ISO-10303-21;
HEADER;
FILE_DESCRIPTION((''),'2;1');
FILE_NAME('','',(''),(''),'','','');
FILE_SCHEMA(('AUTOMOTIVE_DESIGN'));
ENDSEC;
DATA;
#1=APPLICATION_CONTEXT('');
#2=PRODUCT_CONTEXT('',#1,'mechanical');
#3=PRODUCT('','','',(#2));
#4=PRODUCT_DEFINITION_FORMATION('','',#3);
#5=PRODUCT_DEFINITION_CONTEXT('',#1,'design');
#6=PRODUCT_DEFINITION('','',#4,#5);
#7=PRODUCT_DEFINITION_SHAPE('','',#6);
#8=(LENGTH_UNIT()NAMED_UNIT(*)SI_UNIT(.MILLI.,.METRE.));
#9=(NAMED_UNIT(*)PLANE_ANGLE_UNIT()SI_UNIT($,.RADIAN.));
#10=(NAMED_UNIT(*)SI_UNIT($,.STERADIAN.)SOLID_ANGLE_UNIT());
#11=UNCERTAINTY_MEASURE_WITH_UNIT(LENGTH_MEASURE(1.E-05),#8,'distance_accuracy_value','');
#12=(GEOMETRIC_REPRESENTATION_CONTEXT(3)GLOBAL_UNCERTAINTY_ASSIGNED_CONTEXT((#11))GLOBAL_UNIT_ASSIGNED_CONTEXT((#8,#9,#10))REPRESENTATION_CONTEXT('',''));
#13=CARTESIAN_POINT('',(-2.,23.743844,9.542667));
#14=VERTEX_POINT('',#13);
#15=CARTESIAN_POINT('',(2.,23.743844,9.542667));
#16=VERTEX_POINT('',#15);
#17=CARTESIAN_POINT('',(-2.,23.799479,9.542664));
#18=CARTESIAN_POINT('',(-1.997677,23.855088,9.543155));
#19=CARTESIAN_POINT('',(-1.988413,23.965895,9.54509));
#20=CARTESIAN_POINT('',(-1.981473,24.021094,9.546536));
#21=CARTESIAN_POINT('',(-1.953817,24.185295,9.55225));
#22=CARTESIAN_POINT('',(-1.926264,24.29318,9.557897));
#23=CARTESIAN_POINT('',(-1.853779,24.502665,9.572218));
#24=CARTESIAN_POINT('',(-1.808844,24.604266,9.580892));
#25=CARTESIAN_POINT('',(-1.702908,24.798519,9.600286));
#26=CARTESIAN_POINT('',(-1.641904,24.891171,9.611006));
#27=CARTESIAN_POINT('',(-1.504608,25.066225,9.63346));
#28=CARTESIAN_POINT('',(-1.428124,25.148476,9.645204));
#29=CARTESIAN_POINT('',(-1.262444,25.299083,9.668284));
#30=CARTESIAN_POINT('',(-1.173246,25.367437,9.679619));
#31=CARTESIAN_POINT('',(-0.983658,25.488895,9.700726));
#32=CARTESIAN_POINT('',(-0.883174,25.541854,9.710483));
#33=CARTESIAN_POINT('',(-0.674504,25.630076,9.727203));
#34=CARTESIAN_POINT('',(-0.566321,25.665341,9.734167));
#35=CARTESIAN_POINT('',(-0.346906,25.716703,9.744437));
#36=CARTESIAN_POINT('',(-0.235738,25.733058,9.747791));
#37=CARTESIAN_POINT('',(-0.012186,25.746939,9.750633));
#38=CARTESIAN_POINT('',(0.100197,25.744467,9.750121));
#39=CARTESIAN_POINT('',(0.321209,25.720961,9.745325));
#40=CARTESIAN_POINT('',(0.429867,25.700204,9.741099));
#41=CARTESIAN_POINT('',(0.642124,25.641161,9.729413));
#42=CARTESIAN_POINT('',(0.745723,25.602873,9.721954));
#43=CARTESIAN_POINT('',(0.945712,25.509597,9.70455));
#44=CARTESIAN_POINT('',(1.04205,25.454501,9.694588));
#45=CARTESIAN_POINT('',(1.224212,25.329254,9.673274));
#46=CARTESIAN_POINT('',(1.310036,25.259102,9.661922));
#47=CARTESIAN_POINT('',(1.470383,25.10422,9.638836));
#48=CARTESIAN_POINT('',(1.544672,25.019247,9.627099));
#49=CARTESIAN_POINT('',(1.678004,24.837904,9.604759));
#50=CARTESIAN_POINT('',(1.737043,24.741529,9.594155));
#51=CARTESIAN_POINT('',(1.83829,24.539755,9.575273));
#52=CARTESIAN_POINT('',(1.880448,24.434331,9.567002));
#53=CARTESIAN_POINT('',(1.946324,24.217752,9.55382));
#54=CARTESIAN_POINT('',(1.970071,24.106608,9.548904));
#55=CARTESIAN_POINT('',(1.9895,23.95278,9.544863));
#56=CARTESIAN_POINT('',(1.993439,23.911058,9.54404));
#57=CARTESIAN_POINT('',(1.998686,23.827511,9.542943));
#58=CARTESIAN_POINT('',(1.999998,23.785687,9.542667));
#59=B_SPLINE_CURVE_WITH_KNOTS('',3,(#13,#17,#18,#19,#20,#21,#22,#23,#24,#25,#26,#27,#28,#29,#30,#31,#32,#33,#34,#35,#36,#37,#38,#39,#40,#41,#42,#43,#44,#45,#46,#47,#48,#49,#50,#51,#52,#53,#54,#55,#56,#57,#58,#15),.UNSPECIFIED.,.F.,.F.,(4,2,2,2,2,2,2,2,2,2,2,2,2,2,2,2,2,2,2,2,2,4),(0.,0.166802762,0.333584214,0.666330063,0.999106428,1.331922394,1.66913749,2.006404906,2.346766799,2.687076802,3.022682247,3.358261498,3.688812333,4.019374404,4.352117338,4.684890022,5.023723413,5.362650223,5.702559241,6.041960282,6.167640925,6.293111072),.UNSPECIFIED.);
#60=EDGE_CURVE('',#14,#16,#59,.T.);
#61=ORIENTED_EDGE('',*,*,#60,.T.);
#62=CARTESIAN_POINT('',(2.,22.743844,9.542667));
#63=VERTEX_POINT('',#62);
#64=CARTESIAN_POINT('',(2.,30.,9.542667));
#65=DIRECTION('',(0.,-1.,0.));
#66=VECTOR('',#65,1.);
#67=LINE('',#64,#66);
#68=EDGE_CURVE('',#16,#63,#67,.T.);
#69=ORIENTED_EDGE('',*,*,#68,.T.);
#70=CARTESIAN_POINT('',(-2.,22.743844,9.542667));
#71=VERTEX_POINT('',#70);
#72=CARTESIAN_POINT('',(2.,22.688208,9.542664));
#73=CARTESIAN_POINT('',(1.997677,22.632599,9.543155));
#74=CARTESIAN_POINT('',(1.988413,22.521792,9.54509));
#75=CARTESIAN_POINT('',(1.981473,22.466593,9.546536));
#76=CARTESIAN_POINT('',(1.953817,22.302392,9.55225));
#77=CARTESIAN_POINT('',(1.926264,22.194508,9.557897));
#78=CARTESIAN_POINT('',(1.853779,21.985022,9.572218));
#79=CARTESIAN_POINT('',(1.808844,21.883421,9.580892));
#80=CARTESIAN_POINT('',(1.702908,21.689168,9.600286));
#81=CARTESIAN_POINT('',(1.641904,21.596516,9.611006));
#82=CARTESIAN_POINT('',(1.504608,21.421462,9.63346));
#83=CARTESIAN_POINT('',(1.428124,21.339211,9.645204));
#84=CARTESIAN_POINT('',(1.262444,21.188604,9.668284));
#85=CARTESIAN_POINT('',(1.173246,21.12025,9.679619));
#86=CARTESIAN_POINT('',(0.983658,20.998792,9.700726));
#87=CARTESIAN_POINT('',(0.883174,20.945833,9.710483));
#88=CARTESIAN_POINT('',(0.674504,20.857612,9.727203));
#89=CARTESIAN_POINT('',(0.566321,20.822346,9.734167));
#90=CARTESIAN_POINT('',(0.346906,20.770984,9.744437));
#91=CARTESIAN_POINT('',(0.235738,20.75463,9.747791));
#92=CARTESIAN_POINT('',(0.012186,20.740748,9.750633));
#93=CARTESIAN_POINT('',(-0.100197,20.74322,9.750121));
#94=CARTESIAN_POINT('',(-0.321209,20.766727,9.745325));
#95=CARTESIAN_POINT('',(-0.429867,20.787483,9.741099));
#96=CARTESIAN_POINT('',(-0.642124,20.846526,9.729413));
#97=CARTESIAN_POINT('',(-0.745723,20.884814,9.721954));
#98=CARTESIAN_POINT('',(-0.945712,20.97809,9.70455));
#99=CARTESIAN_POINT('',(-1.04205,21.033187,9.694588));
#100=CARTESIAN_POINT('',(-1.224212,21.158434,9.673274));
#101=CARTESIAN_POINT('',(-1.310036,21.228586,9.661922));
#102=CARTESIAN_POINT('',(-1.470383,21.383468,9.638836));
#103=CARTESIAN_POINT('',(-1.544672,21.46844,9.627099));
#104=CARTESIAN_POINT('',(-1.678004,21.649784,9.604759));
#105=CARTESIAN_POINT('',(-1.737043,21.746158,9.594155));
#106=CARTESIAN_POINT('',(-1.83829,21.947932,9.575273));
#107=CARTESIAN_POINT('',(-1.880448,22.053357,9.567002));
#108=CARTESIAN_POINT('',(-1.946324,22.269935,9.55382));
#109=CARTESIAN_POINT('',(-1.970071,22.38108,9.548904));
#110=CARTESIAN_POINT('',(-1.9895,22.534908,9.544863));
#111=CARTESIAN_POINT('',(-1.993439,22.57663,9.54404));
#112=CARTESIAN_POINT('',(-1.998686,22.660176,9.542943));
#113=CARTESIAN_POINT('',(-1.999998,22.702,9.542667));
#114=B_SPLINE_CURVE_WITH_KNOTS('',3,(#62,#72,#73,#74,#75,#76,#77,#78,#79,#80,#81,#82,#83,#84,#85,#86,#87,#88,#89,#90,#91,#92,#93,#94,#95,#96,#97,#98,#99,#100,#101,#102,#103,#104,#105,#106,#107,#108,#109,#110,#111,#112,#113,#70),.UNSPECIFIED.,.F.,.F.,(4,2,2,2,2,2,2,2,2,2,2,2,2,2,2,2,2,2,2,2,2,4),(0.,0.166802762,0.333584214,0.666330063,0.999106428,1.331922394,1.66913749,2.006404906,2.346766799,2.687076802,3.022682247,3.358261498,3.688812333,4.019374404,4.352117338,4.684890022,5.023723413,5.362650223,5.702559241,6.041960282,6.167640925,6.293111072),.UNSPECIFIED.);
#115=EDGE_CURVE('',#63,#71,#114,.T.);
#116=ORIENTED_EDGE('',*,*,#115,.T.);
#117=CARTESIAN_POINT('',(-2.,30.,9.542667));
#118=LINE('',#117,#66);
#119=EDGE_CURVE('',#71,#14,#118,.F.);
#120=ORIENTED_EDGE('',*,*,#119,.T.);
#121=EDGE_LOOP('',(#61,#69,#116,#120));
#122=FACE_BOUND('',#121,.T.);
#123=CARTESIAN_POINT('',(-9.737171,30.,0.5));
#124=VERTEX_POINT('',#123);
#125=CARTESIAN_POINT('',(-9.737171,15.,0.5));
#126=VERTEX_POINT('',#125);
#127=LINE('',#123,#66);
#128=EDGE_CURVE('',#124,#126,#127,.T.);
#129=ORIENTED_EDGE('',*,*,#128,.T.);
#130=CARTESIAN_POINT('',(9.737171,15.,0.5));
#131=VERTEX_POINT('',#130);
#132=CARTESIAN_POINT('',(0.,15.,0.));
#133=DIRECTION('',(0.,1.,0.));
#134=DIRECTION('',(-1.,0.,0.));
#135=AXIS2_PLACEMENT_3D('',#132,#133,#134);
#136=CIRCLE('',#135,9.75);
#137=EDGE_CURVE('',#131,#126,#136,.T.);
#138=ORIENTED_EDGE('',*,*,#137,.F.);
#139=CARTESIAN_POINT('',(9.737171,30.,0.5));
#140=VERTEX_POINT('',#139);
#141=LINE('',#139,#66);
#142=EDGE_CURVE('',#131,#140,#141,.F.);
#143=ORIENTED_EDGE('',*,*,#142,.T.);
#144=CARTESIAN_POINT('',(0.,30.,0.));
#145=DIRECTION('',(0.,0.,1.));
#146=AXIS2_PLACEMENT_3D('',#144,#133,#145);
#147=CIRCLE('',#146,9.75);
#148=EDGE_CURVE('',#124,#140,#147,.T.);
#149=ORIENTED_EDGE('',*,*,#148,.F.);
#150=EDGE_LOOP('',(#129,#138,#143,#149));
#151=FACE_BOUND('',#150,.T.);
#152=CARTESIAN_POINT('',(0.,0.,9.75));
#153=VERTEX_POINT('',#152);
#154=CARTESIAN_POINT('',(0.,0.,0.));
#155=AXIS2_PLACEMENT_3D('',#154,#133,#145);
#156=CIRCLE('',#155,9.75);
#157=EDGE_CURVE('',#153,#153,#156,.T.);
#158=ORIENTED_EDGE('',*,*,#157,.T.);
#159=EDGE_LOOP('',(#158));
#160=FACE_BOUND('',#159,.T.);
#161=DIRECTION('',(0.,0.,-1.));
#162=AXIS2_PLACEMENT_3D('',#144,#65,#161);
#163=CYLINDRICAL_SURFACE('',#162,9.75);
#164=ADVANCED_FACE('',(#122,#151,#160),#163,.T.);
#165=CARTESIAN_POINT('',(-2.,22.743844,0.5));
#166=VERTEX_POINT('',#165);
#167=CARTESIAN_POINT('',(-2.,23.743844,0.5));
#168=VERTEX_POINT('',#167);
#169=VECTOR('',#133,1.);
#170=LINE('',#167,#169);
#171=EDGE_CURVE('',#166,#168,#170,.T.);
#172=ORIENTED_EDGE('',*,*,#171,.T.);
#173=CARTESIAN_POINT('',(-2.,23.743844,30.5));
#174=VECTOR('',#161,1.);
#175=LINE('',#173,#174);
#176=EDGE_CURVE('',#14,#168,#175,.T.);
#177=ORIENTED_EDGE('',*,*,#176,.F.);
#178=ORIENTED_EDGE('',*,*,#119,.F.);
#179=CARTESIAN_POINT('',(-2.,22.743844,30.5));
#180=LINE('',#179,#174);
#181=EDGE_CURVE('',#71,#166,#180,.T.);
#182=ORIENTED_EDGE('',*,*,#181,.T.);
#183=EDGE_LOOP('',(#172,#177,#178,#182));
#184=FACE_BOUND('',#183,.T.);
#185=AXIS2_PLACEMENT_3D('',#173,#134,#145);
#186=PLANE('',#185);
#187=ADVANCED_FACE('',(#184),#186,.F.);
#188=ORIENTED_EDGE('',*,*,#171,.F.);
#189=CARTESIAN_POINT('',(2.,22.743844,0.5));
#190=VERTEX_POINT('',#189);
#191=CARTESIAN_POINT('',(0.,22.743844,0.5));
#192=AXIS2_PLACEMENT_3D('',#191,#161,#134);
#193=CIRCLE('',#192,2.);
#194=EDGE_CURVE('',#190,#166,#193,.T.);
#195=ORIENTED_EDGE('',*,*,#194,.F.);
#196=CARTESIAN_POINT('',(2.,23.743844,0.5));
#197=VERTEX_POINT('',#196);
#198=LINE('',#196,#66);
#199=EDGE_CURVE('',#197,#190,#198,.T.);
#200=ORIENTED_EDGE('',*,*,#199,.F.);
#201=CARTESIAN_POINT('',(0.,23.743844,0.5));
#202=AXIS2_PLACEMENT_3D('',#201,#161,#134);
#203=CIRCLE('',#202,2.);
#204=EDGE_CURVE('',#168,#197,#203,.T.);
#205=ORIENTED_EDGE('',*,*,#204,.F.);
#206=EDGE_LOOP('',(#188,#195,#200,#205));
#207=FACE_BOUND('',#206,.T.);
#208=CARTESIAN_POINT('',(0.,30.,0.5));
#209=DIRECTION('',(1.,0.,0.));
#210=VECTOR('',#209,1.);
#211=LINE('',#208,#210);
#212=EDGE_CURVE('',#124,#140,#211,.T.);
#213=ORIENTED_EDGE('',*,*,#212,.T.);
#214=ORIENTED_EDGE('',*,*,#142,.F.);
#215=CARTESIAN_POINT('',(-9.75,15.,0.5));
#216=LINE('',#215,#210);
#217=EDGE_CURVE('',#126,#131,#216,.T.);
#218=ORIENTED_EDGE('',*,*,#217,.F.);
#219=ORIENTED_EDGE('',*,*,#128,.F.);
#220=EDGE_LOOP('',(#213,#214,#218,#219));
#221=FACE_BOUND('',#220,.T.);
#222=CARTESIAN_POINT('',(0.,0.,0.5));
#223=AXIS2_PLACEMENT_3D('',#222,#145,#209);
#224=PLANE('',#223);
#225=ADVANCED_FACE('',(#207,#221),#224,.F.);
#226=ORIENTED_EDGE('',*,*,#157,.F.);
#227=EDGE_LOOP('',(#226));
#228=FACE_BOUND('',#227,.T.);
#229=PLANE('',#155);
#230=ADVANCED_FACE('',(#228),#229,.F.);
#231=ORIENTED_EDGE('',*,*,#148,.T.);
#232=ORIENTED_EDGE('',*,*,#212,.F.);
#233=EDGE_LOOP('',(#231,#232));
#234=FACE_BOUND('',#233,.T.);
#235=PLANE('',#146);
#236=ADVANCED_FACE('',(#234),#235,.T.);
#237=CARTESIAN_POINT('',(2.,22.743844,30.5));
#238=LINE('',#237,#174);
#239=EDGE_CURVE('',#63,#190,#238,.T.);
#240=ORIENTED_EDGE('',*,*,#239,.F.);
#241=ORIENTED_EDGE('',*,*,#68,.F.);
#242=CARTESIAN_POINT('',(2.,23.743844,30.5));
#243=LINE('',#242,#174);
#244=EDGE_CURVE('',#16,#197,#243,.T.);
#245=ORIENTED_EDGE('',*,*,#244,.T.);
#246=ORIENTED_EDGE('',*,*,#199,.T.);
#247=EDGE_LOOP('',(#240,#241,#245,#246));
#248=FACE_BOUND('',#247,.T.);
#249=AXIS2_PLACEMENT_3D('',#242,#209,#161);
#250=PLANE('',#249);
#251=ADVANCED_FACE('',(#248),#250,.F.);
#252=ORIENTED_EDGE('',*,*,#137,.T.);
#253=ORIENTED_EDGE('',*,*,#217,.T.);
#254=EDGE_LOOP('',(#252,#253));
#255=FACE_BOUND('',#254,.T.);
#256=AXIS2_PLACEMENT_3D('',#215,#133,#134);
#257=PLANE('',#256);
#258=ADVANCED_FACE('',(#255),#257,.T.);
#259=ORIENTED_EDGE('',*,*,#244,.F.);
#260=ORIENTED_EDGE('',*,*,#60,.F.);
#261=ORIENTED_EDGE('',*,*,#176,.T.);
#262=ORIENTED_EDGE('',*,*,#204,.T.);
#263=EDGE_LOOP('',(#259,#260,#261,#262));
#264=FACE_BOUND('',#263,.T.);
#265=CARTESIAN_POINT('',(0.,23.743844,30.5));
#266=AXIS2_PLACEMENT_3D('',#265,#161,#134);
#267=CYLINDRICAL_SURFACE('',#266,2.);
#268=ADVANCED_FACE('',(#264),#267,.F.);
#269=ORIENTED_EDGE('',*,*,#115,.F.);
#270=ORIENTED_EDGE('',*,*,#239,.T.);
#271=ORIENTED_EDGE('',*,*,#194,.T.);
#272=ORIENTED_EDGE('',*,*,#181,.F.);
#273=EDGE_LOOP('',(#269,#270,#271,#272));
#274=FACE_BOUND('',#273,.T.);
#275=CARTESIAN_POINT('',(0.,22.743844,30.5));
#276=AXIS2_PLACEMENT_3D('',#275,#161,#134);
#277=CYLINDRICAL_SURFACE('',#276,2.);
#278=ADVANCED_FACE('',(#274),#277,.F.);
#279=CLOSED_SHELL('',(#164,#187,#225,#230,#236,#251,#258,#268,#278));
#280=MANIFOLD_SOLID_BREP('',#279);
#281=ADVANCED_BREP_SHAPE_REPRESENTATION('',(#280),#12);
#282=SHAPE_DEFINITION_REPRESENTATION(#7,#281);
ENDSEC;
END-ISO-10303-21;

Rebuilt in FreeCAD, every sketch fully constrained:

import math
import FreeCAD as App
import Part
import Sketcher
from FreeCAD import Vector
Q = App.Units.Quantity

doc = App.newDocument("Part")
body = doc.addObject("PartDesign::Body", "Body")

# Sketch on XZ plane
sketch1 = body.newObject("Sketcher::SketchObject", "Sketch")
sketch1.AttachmentSupport = (doc.getObject("XZ_Plane"), [""])
sketch1.MapMode = "FlatFace"
sketch1.addGeometry(Part.Circle(Vector(0, 0, 0), Vector(0, 0, 1), 10), False)
sketch1.addConstraint(Sketcher.Constraint("Coincident", 0, 3, -1, 1))
sketch1.addConstraint(Sketcher.Constraint("Diameter", 0, Q("19.5 mm")))
pad1 = body.newObject("PartDesign::Pad", "Pad")
pad1.Profile = sketch1
pad1.Length = 30
pad1.Reversed = True

# Sketch on XY plane
sketch2 = body.newObject("Sketcher::SketchObject", "Sketch001")
sketch2.AttachmentSupport = (doc.getObject("XY_Plane"), [""])
sketch2.MapMode = "FlatFace"
sketch2.addGeometry(Part.LineSegment(Vector(-10, 30, 0), Vector(-10, 15, 0)), False)
sketch2.addGeometry(Part.LineSegment(Vector(-10, 15, 0), Vector(10, 15, 0)), False)
sketch2.addGeometry(Part.LineSegment(Vector(10, 15, 0), Vector(10, 30, 0)), False)
sketch2.addGeometry(Part.LineSegment(Vector(10, 30, 0), Vector(-10, 30, 0)), False)
sketch2.addConstraint(Sketcher.Constraint("Coincident", 0, 2, 1, 1))
sketch2.addConstraint(Sketcher.Constraint("Coincident", 1, 2, 2, 1))
sketch2.addConstraint(Sketcher.Constraint("Coincident", 2, 2, 3, 1))
sketch2.addConstraint(Sketcher.Constraint("Coincident", 3, 2, 0, 1))
sketch2.addConstraint(Sketcher.Constraint("Vertical", 0))
sketch2.addConstraint(Sketcher.Constraint("Horizontal", 1))
sketch2.addConstraint(Sketcher.Constraint("Vertical", 2))
sketch2.addConstraint(Sketcher.Constraint("Horizontal", 3))
sketch2.addConstraint(Sketcher.Constraint("DistanceY", 0, 2, 0, 1, Q("15 mm")))
sketch2.addConstraint(Sketcher.Constraint("DistanceX", 1, 1, 1, 2, Q("19.5 mm")))
sketch2.addConstraint(Sketcher.Constraint("DistanceY", -1, 1, 0, 2, Q("15 mm")))
sketch2.addConstraint(Sketcher.Constraint("DistanceX", 0, 2, -1, 1, Q("9.75 mm")))
pocket1 = body.newObject("PartDesign::Pocket", "Pocket")
pocket1.Profile = sketch2
pocket1.Type = "TwoLengths"
pocket1.Length = 0.5
pocket1.Length2 = 30
pocket1.Reversed = True

# Sketch on XY plane
sketch3 = body.newObject("Sketcher::SketchObject", "Sketch002")
sketch3.AttachmentSupport = (doc.getObject("XY_Plane"), [""])
sketch3.MapMode = "FlatFace"
sketch3.AttachmentOffset = App.Placement(Vector(0, 0, 0.5), App.Rotation())
sketch3.addGeometry(Part.LineSegment(Vector(-2, 22.7, 0), Vector(-2, 23.7, 0)), False)
sketch3.addGeometry(Part.ArcOfCircle(Part.Circle(Vector(0, 23.7, 0), Vector(0, 0, 1), 2), math.radians(0), math.radians(180)), False)
sketch3.addGeometry(Part.LineSegment(Vector(2, 23.7, 0), Vector(2, 22.7, 0)), False)
sketch3.addGeometry(Part.ArcOfCircle(Part.Circle(Vector(0, 22.7, 0), Vector(0, 0, 1), 2), math.radians(180), math.radians(360)), False)
sketch3.addConstraint(Sketcher.Constraint("Tangent", 0, 2, 1, 2))
sketch3.addConstraint(Sketcher.Constraint("Tangent", 1, 1, 2, 1))
sketch3.addConstraint(Sketcher.Constraint("Tangent", 2, 2, 3, 2))
sketch3.addConstraint(Sketcher.Constraint("Tangent", 3, 1, 0, 1))
sketch3.addConstraint(Sketcher.Constraint("Vertical", 0))
sketch3.addConstraint(Sketcher.Constraint("Vertical", 2))
sketch3.addConstraint(Sketcher.Constraint("PointOnObject", 1, 3, -2))
sketch3.addConstraint(Sketcher.Constraint("Radius", 1, Q("2 mm")))
sketch3.addConstraint(Sketcher.Constraint("DistanceY", 0, 1, 0, 2, Q("1 mm")))
sketch3.addConstraint(Sketcher.Constraint("DistanceY", -1, 1, 1, 3, Q("23.743844 mm")))
pocket2 = body.newObject("PartDesign::Pocket", "Pocket001")
pocket2.Profile = sketch3
pocket2.Length = 30
pocket2.Reversed = True

doc.recompute()
